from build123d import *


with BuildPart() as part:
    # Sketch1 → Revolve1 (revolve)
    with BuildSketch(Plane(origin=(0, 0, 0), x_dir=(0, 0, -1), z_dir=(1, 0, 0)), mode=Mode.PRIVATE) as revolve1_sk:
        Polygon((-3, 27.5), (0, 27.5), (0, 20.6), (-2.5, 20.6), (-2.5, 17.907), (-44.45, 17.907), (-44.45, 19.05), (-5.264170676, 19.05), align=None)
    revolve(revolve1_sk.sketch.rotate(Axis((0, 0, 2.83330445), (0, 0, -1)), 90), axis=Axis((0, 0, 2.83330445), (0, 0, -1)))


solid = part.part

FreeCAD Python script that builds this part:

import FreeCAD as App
import Part
import Sketcher
Q = App.Units.Quantity

doc = App.newDocument("Part")
body = doc.addObject("PartDesign::Body", "Body")

# Sketch on YZ plane
sketch1 = body.newObject("Sketcher::SketchObject", "Sketch")
sketch1.AttachmentSupport = (doc.getObject("YZ_Plane"), [""])
sketch1.MapMode = "FlatFace"
sketch1.addGeometry([
    Part.LineSegment(App.Vector(27.5, 0, 0), App.Vector(27.5, 3, 0)),  # 0
    Part.LineSegment(App.Vector(27.5, 3, 0), App.Vector(19.1, 5.3, 0)),  # 1
    Part.LineSegment(App.Vector(19.1, 5.3, 0), App.Vector(19.1, 44.5, 0)),  # 2
    Part.LineSegment(App.Vector(19.1, 44.5, 0), App.Vector(17.9, 44.5, 0)),  # 3
    Part.LineSegment(App.Vector(17.9, 44.5, 0), App.Vector(17.9, 2.5, 0)),  # 4
    Part.LineSegment(App.Vector(17.9, 2.5, 0), App.Vector(20.6, 2.5, 0)),  # 5
    Part.LineSegment(App.Vector(20.6, 2.5, 0), App.Vector(20.6, 0, 0)),  # 6
    Part.LineSegment(App.Vector(20.6, 0, 0), App.Vector(27.5, 0, 0)),  # 7
], False)
sketch1.addConstraint([
    Sketcher.Constraint("Coincident", 0, 2, 1, 1),
    Sketcher.Constraint("Coincident", 1, 2, 2, 1),
    Sketcher.Constraint("Coincident", 2, 2, 3, 1),
    Sketcher.Constraint("Coincident", 3, 2, 4, 1),
    Sketcher.Constraint("Coincident", 4, 2, 5, 1),
    Sketcher.Constraint("Coincident", 5, 2, 6, 1),
    Sketcher.Constraint("Coincident", 6, 2, 7, 1),
    Sketcher.Constraint("Coincident", 7, 2, 0, 1),
    Sketcher.Constraint("Vertical", 0),
    Sketcher.Constraint("Vertical", 2),
    Sketcher.Constraint("Horizontal", 3),
    Sketcher.Constraint("Vertical", 4),
    Sketcher.Constraint("Horizontal", 5),
    Sketcher.Constraint("Vertical", 6),
    Sketcher.Constraint("Horizontal", 7),
    Sketcher.Constraint("PointOnObject", 6, 2, -1),
    Sketcher.Constraint("DistanceY", 0, 1, 0, 2, Q("3 mm")),
    Sketcher.Constraint("Angle", 1, Q("165 deg")),
    Sketcher.Constraint("DistanceX", 7, 1, 7, 2, Q("6.9 mm")),
    Sketcher.Constraint("DistanceY", 6, 2, 6, 1, Q("2.5 mm")),
    Sketcher.Constraint("DistanceY", 4, 2, 4, 1, Q("41.95 mm")),
    Sketcher.Constraint("DistanceX", -1, 1, 0, 2, Q("27.5 mm")),
    Sketcher.Constraint("DistanceX", 3, 2, 3, 1, Q("1.143 mm")),
    Sketcher.Constraint("DistanceX", 5, 1, 5, 2, Q("2.693 mm")),
])
revolution = body.newObject("PartDesign::Revolution", "Revolution")
revolution.Profile = sketch1
revolution.ReferenceAxis = (sketch1, ["V_Axis"])
revolution.Angle = 360

doc.recompute()
